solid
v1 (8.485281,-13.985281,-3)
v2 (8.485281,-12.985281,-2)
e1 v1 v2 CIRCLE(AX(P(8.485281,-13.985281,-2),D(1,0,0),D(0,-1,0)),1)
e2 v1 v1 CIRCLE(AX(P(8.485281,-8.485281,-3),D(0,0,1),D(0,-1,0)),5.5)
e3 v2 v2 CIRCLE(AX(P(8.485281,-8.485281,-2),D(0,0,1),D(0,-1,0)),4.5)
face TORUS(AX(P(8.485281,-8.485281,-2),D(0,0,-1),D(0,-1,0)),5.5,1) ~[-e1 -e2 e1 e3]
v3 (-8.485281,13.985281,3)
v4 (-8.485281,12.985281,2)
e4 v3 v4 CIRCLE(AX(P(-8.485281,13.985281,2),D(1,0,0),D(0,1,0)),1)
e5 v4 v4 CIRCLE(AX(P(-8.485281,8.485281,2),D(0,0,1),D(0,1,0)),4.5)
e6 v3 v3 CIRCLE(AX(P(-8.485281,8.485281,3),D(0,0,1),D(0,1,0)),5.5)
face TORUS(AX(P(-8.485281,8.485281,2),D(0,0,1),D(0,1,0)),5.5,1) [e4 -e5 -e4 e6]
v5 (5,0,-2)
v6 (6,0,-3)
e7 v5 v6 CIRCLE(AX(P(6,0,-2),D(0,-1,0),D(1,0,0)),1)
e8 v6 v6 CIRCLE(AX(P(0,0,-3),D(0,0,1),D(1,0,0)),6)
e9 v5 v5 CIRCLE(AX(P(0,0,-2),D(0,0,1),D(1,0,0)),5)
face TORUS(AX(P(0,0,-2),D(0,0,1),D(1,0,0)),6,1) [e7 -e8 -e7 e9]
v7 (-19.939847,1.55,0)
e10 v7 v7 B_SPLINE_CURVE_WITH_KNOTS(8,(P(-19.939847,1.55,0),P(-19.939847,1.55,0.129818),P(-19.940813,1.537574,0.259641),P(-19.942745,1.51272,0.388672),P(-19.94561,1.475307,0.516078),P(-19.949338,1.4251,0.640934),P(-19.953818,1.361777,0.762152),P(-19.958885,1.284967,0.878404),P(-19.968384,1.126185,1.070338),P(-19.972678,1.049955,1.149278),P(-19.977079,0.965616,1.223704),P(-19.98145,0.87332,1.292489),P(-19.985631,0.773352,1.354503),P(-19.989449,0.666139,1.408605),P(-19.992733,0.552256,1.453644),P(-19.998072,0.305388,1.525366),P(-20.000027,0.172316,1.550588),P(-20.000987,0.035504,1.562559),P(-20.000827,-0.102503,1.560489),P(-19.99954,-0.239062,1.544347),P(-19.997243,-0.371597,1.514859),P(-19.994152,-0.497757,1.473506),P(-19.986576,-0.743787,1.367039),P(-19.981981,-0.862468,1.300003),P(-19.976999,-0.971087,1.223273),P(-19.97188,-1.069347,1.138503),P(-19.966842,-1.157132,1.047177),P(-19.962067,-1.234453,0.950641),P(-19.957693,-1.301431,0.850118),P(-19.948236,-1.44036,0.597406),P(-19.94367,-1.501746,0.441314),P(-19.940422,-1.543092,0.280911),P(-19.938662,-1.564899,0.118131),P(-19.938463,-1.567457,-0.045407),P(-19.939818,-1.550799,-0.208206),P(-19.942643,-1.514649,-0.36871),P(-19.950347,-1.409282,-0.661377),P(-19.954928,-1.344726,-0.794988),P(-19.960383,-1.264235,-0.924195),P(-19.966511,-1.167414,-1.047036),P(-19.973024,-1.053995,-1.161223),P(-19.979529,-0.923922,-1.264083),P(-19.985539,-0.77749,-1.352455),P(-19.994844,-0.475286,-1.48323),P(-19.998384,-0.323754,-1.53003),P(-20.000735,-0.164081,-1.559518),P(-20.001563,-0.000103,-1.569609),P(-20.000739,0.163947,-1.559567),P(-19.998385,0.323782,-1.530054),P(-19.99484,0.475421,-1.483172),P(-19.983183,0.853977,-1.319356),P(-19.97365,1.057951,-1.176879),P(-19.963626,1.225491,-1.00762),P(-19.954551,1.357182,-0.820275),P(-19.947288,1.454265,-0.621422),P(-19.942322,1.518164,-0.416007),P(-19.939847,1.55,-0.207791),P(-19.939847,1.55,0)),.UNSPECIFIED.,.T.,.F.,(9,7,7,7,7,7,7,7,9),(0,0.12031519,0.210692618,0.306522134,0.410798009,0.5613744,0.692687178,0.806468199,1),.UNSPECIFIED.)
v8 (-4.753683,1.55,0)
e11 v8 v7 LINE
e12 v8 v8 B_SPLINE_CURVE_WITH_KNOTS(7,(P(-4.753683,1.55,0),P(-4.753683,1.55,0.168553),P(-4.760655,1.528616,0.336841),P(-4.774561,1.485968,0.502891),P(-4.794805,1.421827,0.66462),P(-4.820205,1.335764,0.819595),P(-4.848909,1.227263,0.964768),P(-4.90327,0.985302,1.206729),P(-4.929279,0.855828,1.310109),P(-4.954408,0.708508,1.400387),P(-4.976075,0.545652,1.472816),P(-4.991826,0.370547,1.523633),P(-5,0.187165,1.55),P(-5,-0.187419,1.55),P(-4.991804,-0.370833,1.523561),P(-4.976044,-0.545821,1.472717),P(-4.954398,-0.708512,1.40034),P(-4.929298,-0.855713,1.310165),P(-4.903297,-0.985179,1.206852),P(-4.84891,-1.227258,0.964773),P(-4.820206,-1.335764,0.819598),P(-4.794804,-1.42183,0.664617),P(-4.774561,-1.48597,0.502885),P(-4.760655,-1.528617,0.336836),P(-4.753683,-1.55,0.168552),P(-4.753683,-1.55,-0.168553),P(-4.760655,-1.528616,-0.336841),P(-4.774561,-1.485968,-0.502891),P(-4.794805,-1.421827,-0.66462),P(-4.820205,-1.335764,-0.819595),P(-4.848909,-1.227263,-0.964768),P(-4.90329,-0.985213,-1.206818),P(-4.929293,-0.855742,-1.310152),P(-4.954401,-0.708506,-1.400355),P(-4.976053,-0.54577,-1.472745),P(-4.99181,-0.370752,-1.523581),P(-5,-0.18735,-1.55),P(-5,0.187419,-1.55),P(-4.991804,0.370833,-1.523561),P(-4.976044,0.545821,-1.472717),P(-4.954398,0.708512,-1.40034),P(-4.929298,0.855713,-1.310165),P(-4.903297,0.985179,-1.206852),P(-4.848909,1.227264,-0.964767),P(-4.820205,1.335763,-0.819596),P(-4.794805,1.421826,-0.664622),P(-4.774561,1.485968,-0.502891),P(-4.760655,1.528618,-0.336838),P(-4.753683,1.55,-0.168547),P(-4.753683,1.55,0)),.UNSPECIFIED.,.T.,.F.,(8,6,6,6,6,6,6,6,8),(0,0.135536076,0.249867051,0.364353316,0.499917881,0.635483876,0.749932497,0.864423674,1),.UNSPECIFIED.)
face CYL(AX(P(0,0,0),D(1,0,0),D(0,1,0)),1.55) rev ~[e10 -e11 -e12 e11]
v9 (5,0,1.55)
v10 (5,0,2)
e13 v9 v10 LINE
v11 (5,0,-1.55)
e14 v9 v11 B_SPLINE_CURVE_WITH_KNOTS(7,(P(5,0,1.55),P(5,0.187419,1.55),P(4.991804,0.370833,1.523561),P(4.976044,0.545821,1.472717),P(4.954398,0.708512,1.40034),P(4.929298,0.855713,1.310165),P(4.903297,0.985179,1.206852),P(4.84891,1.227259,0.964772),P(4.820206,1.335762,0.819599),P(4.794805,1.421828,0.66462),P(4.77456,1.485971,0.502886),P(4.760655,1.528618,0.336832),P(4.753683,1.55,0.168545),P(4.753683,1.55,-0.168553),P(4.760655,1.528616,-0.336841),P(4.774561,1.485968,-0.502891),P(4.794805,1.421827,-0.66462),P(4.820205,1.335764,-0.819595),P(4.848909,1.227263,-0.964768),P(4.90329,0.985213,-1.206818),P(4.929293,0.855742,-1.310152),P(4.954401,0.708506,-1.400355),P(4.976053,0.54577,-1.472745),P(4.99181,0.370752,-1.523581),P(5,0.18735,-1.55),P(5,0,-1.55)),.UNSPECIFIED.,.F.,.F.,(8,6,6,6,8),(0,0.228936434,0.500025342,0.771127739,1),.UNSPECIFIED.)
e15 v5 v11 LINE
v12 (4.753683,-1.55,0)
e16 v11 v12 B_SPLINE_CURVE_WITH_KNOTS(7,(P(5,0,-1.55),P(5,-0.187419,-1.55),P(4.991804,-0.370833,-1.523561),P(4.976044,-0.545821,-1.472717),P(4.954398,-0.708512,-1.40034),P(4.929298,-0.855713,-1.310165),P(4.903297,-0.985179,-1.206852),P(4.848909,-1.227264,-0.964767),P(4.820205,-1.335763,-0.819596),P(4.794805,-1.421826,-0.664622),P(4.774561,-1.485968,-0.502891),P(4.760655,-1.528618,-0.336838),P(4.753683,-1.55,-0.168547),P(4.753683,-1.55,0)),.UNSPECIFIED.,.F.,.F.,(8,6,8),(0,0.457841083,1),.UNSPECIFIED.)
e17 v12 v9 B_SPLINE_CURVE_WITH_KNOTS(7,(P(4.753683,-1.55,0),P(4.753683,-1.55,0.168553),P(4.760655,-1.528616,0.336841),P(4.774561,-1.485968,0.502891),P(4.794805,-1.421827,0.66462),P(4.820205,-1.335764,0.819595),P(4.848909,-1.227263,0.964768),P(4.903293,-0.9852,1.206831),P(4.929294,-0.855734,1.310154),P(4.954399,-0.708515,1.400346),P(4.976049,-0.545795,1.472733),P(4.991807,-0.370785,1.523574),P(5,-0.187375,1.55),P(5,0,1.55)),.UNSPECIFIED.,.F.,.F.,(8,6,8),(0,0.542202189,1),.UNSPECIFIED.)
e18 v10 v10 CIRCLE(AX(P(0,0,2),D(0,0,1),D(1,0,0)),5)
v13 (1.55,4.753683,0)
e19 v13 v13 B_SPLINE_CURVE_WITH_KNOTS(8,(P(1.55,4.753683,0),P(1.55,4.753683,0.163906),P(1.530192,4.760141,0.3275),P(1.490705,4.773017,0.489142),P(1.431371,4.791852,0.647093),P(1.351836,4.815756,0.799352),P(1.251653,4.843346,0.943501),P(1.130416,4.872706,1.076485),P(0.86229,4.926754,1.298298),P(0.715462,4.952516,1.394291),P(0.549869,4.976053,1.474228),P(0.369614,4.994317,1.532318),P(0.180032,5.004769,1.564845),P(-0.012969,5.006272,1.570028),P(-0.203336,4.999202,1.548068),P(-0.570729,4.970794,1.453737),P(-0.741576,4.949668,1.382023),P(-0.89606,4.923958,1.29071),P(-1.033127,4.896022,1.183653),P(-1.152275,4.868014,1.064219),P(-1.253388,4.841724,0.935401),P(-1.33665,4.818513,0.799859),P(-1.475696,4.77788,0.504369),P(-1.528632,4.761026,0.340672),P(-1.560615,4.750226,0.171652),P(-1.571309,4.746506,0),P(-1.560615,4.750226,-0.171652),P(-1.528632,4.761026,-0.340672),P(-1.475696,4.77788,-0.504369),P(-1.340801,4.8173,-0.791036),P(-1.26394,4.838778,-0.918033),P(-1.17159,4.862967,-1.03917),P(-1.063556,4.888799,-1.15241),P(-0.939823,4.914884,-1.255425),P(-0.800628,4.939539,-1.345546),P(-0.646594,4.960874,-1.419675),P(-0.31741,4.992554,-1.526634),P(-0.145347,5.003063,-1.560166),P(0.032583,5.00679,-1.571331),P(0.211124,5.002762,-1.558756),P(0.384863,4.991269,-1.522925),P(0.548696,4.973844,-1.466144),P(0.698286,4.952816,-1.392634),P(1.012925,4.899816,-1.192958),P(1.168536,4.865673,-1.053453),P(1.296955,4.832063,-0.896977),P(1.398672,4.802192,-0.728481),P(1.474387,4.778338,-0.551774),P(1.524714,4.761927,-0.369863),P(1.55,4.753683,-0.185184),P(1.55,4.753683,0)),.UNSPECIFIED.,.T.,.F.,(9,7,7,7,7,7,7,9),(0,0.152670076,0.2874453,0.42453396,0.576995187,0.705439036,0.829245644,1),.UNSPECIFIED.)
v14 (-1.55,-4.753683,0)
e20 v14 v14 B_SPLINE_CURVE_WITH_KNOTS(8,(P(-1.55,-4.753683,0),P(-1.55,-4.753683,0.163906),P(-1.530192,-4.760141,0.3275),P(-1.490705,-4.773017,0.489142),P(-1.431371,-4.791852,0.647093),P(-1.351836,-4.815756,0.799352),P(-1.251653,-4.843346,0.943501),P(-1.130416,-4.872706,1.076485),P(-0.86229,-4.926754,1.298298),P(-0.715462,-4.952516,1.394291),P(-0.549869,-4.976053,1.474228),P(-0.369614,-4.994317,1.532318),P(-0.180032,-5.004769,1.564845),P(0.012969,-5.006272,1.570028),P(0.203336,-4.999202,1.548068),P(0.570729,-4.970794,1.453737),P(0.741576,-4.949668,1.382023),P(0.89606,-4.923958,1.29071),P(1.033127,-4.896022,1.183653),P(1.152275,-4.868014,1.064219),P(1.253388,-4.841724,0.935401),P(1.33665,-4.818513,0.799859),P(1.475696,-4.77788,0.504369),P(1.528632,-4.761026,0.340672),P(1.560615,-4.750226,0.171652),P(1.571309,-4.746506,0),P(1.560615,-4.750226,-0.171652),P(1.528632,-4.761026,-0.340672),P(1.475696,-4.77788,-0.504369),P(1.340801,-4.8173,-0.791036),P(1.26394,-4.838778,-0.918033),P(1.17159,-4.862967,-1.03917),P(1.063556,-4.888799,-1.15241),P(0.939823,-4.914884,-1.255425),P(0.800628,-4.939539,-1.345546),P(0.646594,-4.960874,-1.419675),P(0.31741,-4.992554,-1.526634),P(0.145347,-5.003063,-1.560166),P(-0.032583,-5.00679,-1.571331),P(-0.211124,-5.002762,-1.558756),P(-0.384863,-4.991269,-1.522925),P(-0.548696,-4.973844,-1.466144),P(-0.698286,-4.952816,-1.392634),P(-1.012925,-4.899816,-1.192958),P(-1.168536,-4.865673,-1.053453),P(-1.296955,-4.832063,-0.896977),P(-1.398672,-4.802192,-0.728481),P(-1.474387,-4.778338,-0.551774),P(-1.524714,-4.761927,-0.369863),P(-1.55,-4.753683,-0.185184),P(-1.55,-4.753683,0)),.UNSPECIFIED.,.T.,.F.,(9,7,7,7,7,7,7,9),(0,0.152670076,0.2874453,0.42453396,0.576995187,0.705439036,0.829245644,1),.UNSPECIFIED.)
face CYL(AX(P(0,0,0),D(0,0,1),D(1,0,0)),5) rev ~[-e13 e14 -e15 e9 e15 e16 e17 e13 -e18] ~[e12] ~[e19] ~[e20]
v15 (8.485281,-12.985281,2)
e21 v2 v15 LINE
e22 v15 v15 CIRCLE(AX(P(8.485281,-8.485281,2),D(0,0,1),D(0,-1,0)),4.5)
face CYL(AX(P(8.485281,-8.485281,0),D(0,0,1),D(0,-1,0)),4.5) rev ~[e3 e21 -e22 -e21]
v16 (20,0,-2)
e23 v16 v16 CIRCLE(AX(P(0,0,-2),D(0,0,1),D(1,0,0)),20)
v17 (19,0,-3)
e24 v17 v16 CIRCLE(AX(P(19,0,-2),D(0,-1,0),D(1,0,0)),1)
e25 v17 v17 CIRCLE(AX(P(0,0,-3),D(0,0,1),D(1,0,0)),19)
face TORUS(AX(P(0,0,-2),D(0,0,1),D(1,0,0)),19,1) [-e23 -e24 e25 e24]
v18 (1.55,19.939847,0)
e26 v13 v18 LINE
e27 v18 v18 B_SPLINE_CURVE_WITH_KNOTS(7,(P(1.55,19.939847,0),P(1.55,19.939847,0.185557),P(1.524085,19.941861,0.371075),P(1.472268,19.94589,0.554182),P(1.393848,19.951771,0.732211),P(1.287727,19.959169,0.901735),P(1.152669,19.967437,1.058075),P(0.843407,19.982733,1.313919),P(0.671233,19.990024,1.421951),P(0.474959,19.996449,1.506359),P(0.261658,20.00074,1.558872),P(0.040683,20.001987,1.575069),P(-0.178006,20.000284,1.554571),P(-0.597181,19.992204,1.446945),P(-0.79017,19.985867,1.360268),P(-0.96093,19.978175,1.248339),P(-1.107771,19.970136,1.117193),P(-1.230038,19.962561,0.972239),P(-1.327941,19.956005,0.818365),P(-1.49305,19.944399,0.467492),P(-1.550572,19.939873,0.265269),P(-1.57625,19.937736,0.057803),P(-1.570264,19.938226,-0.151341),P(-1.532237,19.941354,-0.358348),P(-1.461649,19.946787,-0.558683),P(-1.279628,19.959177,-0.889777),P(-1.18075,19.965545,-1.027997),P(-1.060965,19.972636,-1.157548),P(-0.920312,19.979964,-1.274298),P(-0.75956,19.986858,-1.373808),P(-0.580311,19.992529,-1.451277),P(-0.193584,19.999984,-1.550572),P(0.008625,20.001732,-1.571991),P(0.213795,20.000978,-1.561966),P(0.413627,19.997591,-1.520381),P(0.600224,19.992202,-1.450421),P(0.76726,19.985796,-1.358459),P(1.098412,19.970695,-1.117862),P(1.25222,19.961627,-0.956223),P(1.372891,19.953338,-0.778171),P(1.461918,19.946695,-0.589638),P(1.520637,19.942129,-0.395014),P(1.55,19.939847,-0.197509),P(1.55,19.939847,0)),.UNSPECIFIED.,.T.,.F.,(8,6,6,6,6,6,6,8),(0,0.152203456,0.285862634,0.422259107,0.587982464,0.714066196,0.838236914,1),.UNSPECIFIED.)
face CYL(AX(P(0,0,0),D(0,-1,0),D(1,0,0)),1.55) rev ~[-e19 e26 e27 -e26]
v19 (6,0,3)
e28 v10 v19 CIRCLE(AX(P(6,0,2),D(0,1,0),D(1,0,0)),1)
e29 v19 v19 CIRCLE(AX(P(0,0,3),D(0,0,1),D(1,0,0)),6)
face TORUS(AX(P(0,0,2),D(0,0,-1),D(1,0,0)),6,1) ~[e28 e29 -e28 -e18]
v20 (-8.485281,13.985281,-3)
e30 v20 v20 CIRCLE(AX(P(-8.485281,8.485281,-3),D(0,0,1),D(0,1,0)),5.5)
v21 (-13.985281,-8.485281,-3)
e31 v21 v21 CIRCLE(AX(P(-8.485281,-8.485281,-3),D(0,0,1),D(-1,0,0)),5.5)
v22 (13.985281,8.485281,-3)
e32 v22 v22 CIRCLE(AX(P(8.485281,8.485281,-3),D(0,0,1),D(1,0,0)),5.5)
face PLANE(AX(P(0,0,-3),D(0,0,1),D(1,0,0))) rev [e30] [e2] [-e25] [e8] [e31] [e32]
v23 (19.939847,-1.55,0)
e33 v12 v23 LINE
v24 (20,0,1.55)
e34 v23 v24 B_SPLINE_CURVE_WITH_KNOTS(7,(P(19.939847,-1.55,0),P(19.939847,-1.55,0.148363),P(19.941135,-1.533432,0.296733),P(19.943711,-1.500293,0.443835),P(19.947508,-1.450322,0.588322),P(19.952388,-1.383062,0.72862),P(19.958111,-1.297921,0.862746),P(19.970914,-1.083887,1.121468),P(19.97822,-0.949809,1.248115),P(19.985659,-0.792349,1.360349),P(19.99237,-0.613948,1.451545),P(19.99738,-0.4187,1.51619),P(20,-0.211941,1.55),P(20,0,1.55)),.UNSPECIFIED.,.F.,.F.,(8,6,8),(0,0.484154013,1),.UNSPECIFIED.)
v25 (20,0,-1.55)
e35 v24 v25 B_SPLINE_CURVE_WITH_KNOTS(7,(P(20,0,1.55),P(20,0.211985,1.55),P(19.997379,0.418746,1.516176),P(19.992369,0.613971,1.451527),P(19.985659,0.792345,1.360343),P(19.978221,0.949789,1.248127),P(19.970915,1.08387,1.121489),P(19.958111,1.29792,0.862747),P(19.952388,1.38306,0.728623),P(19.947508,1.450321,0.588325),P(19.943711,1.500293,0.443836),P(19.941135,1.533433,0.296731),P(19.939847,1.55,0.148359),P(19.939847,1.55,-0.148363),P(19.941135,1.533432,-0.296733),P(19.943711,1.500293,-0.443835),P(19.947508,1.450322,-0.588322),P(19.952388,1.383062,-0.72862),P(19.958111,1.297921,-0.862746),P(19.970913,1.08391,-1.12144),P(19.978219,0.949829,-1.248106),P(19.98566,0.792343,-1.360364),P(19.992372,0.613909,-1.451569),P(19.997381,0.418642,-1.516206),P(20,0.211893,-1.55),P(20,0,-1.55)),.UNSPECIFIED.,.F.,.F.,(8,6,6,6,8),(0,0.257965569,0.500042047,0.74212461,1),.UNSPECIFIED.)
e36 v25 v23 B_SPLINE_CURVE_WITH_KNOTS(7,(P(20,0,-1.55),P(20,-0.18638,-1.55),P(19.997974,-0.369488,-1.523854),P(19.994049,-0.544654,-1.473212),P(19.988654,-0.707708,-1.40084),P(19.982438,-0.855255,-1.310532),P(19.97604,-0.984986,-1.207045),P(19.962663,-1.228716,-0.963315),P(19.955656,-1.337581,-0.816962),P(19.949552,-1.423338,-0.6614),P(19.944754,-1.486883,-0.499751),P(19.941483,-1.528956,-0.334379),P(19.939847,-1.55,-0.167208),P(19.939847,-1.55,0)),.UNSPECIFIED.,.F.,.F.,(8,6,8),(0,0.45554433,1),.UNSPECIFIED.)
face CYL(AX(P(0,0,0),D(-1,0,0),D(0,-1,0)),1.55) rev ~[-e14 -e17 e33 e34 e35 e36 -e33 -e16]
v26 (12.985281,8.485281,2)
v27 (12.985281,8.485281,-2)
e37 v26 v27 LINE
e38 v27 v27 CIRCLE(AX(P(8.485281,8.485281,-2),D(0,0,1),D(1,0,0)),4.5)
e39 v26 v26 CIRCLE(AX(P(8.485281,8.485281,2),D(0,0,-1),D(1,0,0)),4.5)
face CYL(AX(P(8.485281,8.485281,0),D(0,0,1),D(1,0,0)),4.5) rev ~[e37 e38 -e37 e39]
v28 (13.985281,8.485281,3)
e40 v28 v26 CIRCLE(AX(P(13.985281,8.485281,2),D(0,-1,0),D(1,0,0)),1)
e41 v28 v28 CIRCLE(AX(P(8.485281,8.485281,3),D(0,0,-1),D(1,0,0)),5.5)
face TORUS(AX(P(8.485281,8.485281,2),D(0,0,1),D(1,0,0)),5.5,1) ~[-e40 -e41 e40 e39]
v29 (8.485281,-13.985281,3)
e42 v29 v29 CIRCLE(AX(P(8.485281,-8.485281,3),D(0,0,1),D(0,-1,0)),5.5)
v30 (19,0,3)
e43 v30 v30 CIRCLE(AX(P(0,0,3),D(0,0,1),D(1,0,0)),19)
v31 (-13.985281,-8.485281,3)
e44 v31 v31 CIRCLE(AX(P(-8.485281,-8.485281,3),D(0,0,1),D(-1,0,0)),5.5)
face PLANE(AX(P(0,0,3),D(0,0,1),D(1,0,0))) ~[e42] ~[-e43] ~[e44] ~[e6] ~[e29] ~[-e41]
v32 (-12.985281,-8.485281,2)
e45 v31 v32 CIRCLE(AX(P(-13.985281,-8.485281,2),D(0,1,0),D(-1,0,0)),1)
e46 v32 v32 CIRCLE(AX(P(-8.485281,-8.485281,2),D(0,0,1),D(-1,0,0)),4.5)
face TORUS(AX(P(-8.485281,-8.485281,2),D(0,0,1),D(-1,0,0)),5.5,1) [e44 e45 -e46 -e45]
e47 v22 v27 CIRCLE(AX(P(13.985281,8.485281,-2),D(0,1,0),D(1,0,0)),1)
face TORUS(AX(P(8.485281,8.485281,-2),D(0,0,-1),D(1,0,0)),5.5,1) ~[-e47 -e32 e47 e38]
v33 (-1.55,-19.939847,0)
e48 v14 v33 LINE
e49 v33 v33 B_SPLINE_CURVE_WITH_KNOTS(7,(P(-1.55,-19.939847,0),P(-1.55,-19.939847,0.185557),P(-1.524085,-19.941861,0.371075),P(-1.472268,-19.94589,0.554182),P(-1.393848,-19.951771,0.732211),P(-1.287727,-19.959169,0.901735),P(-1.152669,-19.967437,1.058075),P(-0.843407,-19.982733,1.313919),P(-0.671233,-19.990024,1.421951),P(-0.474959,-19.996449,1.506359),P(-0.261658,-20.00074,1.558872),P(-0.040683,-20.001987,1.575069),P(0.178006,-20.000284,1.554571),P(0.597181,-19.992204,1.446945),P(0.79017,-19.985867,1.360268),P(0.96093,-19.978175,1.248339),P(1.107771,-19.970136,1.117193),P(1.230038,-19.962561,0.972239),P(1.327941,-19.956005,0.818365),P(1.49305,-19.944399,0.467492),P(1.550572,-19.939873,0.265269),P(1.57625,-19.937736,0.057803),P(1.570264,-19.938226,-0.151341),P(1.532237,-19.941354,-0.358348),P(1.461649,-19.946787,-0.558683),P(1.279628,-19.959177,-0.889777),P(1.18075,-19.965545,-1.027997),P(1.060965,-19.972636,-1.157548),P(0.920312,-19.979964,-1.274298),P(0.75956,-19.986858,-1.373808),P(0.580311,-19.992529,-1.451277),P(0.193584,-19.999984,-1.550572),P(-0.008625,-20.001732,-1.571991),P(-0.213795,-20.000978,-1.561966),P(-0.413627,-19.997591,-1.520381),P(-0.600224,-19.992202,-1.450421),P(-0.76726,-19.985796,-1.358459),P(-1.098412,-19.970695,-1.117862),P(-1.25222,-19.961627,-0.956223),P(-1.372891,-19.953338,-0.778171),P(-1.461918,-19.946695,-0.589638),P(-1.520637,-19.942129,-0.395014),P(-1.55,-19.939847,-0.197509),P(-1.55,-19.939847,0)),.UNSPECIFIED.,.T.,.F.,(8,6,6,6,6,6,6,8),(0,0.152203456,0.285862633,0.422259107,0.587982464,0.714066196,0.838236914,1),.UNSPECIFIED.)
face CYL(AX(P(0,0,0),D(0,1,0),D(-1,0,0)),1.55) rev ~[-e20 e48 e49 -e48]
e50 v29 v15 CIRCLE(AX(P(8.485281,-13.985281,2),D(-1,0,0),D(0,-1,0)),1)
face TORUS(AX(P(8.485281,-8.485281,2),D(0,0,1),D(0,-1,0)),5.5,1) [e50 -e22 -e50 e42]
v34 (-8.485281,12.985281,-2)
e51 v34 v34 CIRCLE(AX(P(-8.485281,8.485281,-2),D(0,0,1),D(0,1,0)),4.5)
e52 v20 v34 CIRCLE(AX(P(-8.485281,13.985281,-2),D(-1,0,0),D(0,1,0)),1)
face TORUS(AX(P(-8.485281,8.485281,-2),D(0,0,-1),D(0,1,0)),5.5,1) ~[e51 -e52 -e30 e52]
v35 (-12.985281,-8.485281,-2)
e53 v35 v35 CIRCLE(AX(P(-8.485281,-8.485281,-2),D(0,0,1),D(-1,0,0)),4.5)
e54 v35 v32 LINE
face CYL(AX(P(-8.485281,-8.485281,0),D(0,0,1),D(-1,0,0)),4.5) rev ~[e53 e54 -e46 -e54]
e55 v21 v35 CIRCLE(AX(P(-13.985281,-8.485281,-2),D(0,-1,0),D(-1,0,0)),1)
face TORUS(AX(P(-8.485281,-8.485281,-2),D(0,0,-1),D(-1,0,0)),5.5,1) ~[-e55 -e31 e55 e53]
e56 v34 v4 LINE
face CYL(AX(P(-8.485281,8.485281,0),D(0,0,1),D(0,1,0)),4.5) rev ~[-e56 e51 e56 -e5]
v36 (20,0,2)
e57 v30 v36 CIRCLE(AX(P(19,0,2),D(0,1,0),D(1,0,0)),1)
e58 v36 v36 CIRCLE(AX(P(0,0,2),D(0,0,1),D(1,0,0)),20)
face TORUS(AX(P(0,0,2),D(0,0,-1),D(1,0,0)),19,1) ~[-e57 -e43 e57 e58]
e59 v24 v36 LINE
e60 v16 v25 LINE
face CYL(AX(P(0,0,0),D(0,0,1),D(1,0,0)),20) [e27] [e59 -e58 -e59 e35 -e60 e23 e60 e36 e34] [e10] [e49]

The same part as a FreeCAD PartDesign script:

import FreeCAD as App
import Part
import Sketcher

V = App.Vector


def edges_at(feature, points):
    """Names of the edges that pass closest to the given points."""
    edges = feature.Shape.Edges
    near = lambda p: min(range(len(edges)), key=lambda i: edges[i].distToShape(Part.Vertex(*p))[0])
    return sorted({f"Edge{near(p) + 1}" for p in points})

doc = App.newDocument("Part")
body = doc.addObject("PartDesign::Body", "Body")

# Sketch on XZ plane
sketch1 = body.newObject("Sketcher::SketchObject", "Sketch")
sketch1.AttachmentSupport = (doc.getObject("XZ_Plane"), [""])
sketch1.MapMode = "FlatFace"
sketch1.addGeometry([
    Part.LineSegment(V(5, 3, 0), V(5, -3, 0)),
    Part.LineSegment(V(5, -3, 0), V(20, -3, 0)),
    Part.LineSegment(V(20, -3, 0), V(20, 3, 0)),
    Part.LineSegment(V(20, 3, 0), V(5, 3, 0)),
], False)
sketch1.addConstraint([
    Sketcher.Constraint("Coincident", 0, 2, 1, 1),
    Sketcher.Constraint("Coincident", 1, 2, 2, 1),
    Sketcher.Constraint("Coincident", 2, 2, 3, 1),
    Sketcher.Constraint("Coincident", 3, 2, 0, 1),
    Sketcher.Constraint("Vertical", 0),
    Sketcher.Constraint("Horizontal", 1),
    Sketcher.Constraint("Vertical", 2),
    Sketcher.Constraint("Horizontal", 3),
    Sketcher.Constraint("DistanceX", 1, 1, 1, 2, 15.0),
    Sketcher.Constraint("DistanceY", 0, 2, 0, 1, 6.0),
    Sketcher.Constraint("DistanceX", -1, 1, 0, 2, 5.0),
    Sketcher.Constraint("DistanceY", 0, 2, -1, 1, 3.0),
])
revolution = body.newObject("PartDesign::Revolution", "Revolution")
revolution.Profile = sketch1
revolution.ReferenceAxis = (sketch1, ["V_Axis"])
revolution.Angle = 360

# Sketch on XZ plane
sketch2 = body.newObject("Sketcher::SketchObject", "Sketch001")
sketch2.AttachmentSupport = (doc.getObject("XZ_Plane"), [""])
sketch2.MapMode = "FlatFace"
sketch2.addGeometry(Part.Circle(V(0, 0, 0), V(0, 0, 1), 1.6), False)
sketch2.addConstraint([
    Sketcher.Constraint("Coincident", 0, 3, -1, 1),
    Sketcher.Constraint("Diameter", 0, 3.1),
])
pocket1 = body.newObject("PartDesign::Pocket", "Pocket")
pocket1.Profile = sketch2
pocket1.Length = 25
doc.recompute()

polarpattern = body.newObject("PartDesign::PolarPattern", "PolarPattern")
polarpattern.Originals = [pocket1]
polarpattern.Axis = (doc.getObject("Z_Axis"), [""])
polarpattern.Angle = 360
polarpattern.Occurrences = 4
body.Tip = polarpattern

# Sketch on XY plane
sketch3 = body.newObject("Sketcher::SketchObject", "Sketch002")
sketch3.AttachmentSupport = (doc.getObject("XY_Plane"), [""])
sketch3.MapMode = "FlatFace"
sketch3.addGeometry(Part.Circle(V(8.5, 8.5, 0), V(0, 0, 1), 4.5), False)
sketch3.addConstraint([
    Sketcher.Constraint("Diameter", 0, 9.0),
    Sketcher.Constraint("DistanceX", -1, 1, 0, 3, 8.485281),
    Sketcher.Constraint("DistanceY", -1, 1, 0, 3, 8.485281),
])
pocket2 = body.newObject("PartDesign::Pocket", "Pocket001")
pocket2.Profile = sketch3
pocket2.Type = "ThroughAll"
pocket2.Midplane = True
doc.recompute()

polarpattern2 = body.newObject("PartDesign::PolarPattern", "PolarPattern001")
polarpattern2.Originals = [pocket2]
polarpattern2.Axis = (doc.getObject("Z_Axis"), [""])
polarpattern2.Angle = 360
polarpattern2.Occurrences = 4
body.Tip = polarpattern2
doc.recompute()

fillet = body.newObject("PartDesign::Fillet", "Fillet")
fillet.Base = (polarpattern2, edges_at(polarpattern2, [
    (-20, 0, 3),
    (3.985, 8.485, 3),
    (-5, 0, 3),
    (-8.485, 3.985, 3),
    (-3.985, -8.485, 3),
    (8.485, -3.985, 3),
]))
fillet.Radius = 1
doc.recompute()

fillet2 = body.newObject("PartDesign::Fillet", "Fillet001")
fillet2.Base = (fillet, edges_at(fillet, [
    (-20, 0, -3),
    (3.985, 8.485, -3),
    (8.485, -3.985, -3),
    (-5, 0, -3),
    (-8.485, 3.985, -3),
    (-3.985, -8.485, -3),
]))
fillet2.Radius = 1

doc.recompute()
